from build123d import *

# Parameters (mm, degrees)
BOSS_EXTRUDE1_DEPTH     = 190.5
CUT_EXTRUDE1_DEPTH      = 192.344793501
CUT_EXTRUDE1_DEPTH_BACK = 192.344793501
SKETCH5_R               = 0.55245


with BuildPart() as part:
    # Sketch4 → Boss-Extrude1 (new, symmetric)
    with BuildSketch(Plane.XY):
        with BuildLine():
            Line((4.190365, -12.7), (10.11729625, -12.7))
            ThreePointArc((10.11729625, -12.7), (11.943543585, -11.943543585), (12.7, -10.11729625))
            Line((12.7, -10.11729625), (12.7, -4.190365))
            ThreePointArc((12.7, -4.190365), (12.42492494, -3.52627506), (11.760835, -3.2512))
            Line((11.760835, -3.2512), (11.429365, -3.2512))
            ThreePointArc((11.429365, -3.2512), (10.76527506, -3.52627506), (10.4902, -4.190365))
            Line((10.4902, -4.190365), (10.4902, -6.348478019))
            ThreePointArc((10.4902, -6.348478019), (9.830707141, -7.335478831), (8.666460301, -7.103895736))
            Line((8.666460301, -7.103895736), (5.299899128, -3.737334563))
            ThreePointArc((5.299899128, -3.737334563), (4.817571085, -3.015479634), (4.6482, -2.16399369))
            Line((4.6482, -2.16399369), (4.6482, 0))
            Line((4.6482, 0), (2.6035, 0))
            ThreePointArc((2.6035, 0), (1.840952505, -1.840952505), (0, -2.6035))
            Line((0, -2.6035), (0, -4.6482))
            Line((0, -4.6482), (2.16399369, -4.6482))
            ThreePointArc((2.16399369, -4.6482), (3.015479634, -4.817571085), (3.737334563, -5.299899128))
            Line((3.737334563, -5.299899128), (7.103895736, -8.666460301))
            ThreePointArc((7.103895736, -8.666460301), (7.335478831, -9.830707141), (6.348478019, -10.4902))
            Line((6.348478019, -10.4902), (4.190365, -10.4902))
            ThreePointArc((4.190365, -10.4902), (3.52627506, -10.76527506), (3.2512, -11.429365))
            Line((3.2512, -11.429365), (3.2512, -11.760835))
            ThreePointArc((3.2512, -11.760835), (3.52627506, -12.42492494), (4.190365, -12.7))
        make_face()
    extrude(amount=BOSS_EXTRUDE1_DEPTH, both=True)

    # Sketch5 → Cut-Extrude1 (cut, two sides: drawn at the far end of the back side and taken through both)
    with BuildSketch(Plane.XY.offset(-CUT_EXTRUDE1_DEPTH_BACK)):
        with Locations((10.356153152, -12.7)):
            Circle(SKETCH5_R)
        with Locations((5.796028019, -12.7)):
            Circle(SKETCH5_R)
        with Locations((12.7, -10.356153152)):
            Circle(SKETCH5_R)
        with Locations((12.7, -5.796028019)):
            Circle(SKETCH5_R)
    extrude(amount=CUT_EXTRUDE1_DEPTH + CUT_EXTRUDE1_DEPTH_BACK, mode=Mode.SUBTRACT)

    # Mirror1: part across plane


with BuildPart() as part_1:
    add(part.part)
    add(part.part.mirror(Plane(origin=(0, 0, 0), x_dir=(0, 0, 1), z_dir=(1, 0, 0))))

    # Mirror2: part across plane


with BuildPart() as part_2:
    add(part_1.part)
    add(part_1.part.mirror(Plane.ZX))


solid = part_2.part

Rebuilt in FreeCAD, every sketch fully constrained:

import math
import FreeCAD as App
import Part
import Sketcher
from FreeCAD import Vector
Q = App.Units.Quantity

doc = App.newDocument("Part")
body = doc.addObject("PartDesign::Body", "Body")

# Sketch on XY plane
sketch1 = doc.addObject("Sketcher::SketchObject", "Sketch")
body.addObject(sketch1)
sketch1.AttachmentSupport = (doc.XY_Plane, [""])
sketch1.MapMode = "FlatFace"
sketch1.addGeometry([
    Part.LineSegment(Vector(4.19, -12.7, 0), Vector(10.12, -12.7, 0)),  # 0
    Part.ArcOfCircle(Part.Circle(Vector(10.12, -10.12, 0), Vector(0, 0, 1), 2.58), math.radians(-90), math.radians(0)),  # 1
    Part.LineSegment(Vector(12.7, -10.12, 0), Vector(12.7, -4.19, 0)),  # 2
    Part.ArcOfCircle(Part.Circle(Vector(11.76, -4.19, 0), Vector(0, 0, 1), 0.94), math.radians(0), math.radians(90)),  # 3
    Part.LineSegment(Vector(11.76, -3.25, 0), Vector(11.43, -3.25, 0)),  # 4
    Part.ArcOfCircle(Part.Circle(Vector(11.43, -4.19, 0), Vector(0, 0, 1), 0.94), math.radians(90), math.radians(180)),  # 5
    Part.LineSegment(Vector(10.49, -4.19, 0), Vector(10.49, -6.35, 0)),  # 6
    Part.ArcOfCircle(Part.Circle(Vector(9.42, -6.35, 0), Vector(0, 0, 1), 1.07), math.radians(-135), math.radians(0)),  # 7
    Part.LineSegment(Vector(8.67, -7.1, 0), Vector(5.3, -3.74, 0)),  # 8
    Part.ArcOfCircle(Part.Circle(Vector(6.87, -2.16, 0), Vector(0, 0, 1), 2.23), math.radians(-180), math.radians(-135)),  # 9
    Part.LineSegment(Vector(4.65, -2.16, 0), Vector(4.65, 0, 0)),  # 10
    Part.LineSegment(Vector(4.65, 0, 0), Vector(2.6, 0, 0)),  # 11
    Part.ArcOfCircle(Part.Circle(Vector(0, 0, 0), Vector(0, 0, 1), 2.6), math.radians(-90), math.radians(0)),  # 12
    Part.LineSegment(Vector(0, -2.6, 0), Vector(0, -4.65, 0)),  # 13
    Part.LineSegment(Vector(0, -4.65, 0), Vector(2.16, -4.65, 0)),  # 14
    Part.ArcOfCircle(Part.Circle(Vector(2.16, -6.87, 0), Vector(0, 0, 1), 2.23), math.radians(45), math.radians(90)),  # 15
    Part.LineSegment(Vector(3.74, -5.3, 0), Vector(7.1, -8.67, 0)),  # 16
    Part.ArcOfCircle(Part.Circle(Vector(6.35, -9.42, 0), Vector(0, 0, 1), 1.07), math.radians(-90), math.radians(45)),  # 17
    Part.LineSegment(Vector(6.35, -10.49, 0), Vector(4.19, -10.49, 0)),  # 18
    Part.ArcOfCircle(Part.Circle(Vector(4.19, -11.43, 0), Vector(0, 0, 1), 0.94), math.radians(90), math.radians(180)),  # 19
    Part.LineSegment(Vector(3.25, -11.43, 0), Vector(3.25, -11.76, 0)),  # 20
    Part.ArcOfCircle(Part.Circle(Vector(4.19, -11.76, 0), Vector(0, 0, 1), 0.94), math.radians(-180), math.radians(-90)),  # 21
], False)
sketch1.addConstraint([
    Sketcher.Constraint("Tangent", 0, 2, 1, 1),
    Sketcher.Constraint("Tangent", 1, 2, 2, 1),
    Sketcher.Constraint("Tangent", 2, 2, 3, 1),
    Sketcher.Constraint("Tangent", 3, 2, 4, 1),
    Sketcher.Constraint("Tangent", 4, 2, 5, 1),
    Sketcher.Constraint("Tangent", 5, 2, 6, 1),
    Sketcher.Constraint("Tangent", 6, 2, 7, 2),
    Sketcher.Constraint("Tangent", 7, 1, 8, 1),
    Sketcher.Constraint("Tangent", 8, 2, 9, 2),
    Sketcher.Constraint("Tangent", 9, 1, 10, 1),
    Sketcher.Constraint("Coincident", 10, 2, 11, 1),
    Sketcher.Constraint("Coincident", 11, 2, 12, 2),
    Sketcher.Constraint("Coincident", 12, 1, 13, 1),
    Sketcher.Constraint("Coincident", 13, 2, 14, 1),
    Sketcher.Constraint("Tangent", 14, 2, 15, 2),
    Sketcher.Constraint("Tangent", 15, 1, 16, 1),
    Sketcher.Constraint("Tangent", 16, 2, 17, 2),
    Sketcher.Constraint("Tangent", 17, 1, 18, 1),
    Sketcher.Constraint("Tangent", 18, 2, 19, 1),
    Sketcher.Constraint("Tangent", 19, 2, 20, 1),
    Sketcher.Constraint("Tangent", 20, 2, 21, 1),
    Sketcher.Constraint("Tangent", 21, 2, 0, 1),
    Sketcher.Constraint("Horizontal", 0),
    Sketcher.Constraint("Vertical", 2),
    Sketcher.Constraint("Horizontal", 4),
    Sketcher.Constraint("Vertical", 6),
    Sketcher.Constraint("Vertical", 10),
    Sketcher.Constraint("Horizontal", 11),
    Sketcher.Constraint("Vertical", 13),
    Sketcher.Constraint("Horizontal", 14),
    Sketcher.Constraint("Horizontal", 18),
    Sketcher.Constraint("Vertical", 20),
    Sketcher.Constraint("Coincident", 12, 3, -1, 1),
    Sketcher.Constraint("Equal", 3, 5),
    Sketcher.Constraint("Equal", 9, 15),
    Sketcher.Constraint("Equal", 7, 17),
    Sketcher.Constraint("Equal", 5, 19),
    Sketcher.Constraint("Equal", 19, 21),
    Sketcher.Constraint("PointOnObject", 10, 2, -1),
    Sketcher.Constraint("PointOnObject", 12, 1, -2),
    Sketcher.Constraint("Parallel", 8, 16),
    Sketcher.Constraint("Equal", 0, 2),
    Sketcher.Constraint("Equal", 18, 6),
    Sketcher.Constraint("Equal", 14, 10),
    Sketcher.Constraint("Equal", 11, 13),
    Sketcher.Constraint("Equal", 4, 20),
    Sketcher.Constraint("Equal", 8, 16),
    Sketcher.Constraint("DistanceY", 0, 2, -1, 1, Q("0.5 in")),
    Sketcher.Constraint("Radius", 9, Q("0.0876 in")),
    Sketcher.Constraint("Radius", 12, Q("0.1025 in")),
    Sketcher.Constraint("DistanceX", 9, 1, 5, 2, Q("0.23 in")),
    Sketcher.Constraint("DistanceX", 11, 2, 11, 1, Q("0.0805 in")),
    Sketcher.Constraint("DistanceY", 3, 2, -1, 1, Q("0.128 in")),
    Sketcher.Constraint("Radius", 7, Q("1.068322 mm")),
    Sketcher.Constraint("DistanceX", 17, 3, 7, 3, Q("0.121 in")),
    Sketcher.Constraint("Radius", 1, Q("2.582704 mm")),
    Sketcher.Constraint("Radius", 3, Q("0.939165 mm")),
])
pad1 = doc.addObject("PartDesign::Pad", "Pad")
body.addObject(pad1)
pad1.Profile = sketch1
pad1.Length = Q("15 in")
pad1.Midplane = True

# Sketch on XY plane
sketch2 = doc.addObject("Sketcher::SketchObject", "Sketch001")
body.addObject(sketch2)
sketch2.AttachmentSupport = (doc.XY_Plane, [""])
sketch2.MapMode = "FlatFace"
sketch2.addGeometry([
    Part.Circle(Vector(10.4, -12.7, 0), Vector(0, 0, 1), 0.6),
    Part.Circle(Vector(5.8, -12.7, 0), Vector(0, 0, 1), 0.6),
    Part.Circle(Vector(12.7, -10.4, 0), Vector(0, 0, 1), 0.6),
    Part.Circle(Vector(12.7, -5.8, 0), Vector(0, 0, 1), 0.6),
], False)
sketch2.addConstraint([
    Sketcher.Constraint("Equal", 0, 1),
    Sketcher.Constraint("Equal", 1, 2),
    Sketcher.Constraint("Equal", 2, 3),
    Sketcher.Constraint("Horizontal", 0, 3, 1, 3),
    Sketcher.Constraint("Vertical", 2, 3, 3, 3),
    Sketcher.Constraint("Diameter", 0, Q("0.0435 in")),
    Sketcher.Constraint("DistanceY", 0, 3, -1, 1, Q("0.5 in")),
    Sketcher.Constraint("DistanceX", -1, 1, 2, 3, Q("0.5 in")),
    Sketcher.Constraint("DistanceX", -1, 1, 1, 3, Q("5.796028 mm")),
    Sketcher.Constraint("DistanceY", 3, 3, -1, 1, Q("5.796028 mm")),
    Sketcher.Constraint("DistanceX", -1, 1, 0, 3, Q("10.356153 mm")),
    Sketcher.Constraint("DistanceY", 2, 3, -1, 1, Q("10.356153 mm")),
])
pocket1 = doc.addObject("PartDesign::Pocket", "Pocket")
body.addObject(pocket1)
pocket1.Profile = sketch2
pocket1.Type = "ThroughAll"
pocket1.Midplane = True
body2 = doc.addObject("PartDesign::Body", "Body001")
doc.recompute()

body2.BaseFeature = body
doc.recompute()

mirroring = doc.addObject("Part::Mirroring", "Mirroring")
mirroring.Source = body
mirroring.Base = Vector(0, 0, 0)
mirroring.Normal = Vector(1, 0, 0)
body3 = doc.addObject("PartDesign::Body", "Body002")
body3.BaseFeature = mirroring
boolean = doc.addObject("PartDesign::Boolean", "Boolean")
body2.addObject(boolean)
boolean.Type = "Fuse"
boolean.addObjects([body3])
doc.recompute()
body4 = doc.addObject("PartDesign::Body", "Body003")
doc.recompute()

body4.BaseFeature = body2
doc.recompute()

mirroring2 = doc.addObject("Part::Mirroring", "Mirroring001")
mirroring2.Source = body2
mirroring2.Base = Vector(0, 0, 0)
mirroring2.Normal = Vector(0, 1, 0)
body5 = doc.addObject("PartDesign::Body", "Body004")
body5.BaseFeature = mirroring2
boolean2 = doc.addObject("PartDesign::Boolean", "Boolean001")
body4.addObject(boolean2)
boolean2.Type = "Fuse"
boolean2.addObjects([body5])
doc.recompute()
mirroring.Visibility = False
mirroring2.Visibility = False

doc.recompute()
